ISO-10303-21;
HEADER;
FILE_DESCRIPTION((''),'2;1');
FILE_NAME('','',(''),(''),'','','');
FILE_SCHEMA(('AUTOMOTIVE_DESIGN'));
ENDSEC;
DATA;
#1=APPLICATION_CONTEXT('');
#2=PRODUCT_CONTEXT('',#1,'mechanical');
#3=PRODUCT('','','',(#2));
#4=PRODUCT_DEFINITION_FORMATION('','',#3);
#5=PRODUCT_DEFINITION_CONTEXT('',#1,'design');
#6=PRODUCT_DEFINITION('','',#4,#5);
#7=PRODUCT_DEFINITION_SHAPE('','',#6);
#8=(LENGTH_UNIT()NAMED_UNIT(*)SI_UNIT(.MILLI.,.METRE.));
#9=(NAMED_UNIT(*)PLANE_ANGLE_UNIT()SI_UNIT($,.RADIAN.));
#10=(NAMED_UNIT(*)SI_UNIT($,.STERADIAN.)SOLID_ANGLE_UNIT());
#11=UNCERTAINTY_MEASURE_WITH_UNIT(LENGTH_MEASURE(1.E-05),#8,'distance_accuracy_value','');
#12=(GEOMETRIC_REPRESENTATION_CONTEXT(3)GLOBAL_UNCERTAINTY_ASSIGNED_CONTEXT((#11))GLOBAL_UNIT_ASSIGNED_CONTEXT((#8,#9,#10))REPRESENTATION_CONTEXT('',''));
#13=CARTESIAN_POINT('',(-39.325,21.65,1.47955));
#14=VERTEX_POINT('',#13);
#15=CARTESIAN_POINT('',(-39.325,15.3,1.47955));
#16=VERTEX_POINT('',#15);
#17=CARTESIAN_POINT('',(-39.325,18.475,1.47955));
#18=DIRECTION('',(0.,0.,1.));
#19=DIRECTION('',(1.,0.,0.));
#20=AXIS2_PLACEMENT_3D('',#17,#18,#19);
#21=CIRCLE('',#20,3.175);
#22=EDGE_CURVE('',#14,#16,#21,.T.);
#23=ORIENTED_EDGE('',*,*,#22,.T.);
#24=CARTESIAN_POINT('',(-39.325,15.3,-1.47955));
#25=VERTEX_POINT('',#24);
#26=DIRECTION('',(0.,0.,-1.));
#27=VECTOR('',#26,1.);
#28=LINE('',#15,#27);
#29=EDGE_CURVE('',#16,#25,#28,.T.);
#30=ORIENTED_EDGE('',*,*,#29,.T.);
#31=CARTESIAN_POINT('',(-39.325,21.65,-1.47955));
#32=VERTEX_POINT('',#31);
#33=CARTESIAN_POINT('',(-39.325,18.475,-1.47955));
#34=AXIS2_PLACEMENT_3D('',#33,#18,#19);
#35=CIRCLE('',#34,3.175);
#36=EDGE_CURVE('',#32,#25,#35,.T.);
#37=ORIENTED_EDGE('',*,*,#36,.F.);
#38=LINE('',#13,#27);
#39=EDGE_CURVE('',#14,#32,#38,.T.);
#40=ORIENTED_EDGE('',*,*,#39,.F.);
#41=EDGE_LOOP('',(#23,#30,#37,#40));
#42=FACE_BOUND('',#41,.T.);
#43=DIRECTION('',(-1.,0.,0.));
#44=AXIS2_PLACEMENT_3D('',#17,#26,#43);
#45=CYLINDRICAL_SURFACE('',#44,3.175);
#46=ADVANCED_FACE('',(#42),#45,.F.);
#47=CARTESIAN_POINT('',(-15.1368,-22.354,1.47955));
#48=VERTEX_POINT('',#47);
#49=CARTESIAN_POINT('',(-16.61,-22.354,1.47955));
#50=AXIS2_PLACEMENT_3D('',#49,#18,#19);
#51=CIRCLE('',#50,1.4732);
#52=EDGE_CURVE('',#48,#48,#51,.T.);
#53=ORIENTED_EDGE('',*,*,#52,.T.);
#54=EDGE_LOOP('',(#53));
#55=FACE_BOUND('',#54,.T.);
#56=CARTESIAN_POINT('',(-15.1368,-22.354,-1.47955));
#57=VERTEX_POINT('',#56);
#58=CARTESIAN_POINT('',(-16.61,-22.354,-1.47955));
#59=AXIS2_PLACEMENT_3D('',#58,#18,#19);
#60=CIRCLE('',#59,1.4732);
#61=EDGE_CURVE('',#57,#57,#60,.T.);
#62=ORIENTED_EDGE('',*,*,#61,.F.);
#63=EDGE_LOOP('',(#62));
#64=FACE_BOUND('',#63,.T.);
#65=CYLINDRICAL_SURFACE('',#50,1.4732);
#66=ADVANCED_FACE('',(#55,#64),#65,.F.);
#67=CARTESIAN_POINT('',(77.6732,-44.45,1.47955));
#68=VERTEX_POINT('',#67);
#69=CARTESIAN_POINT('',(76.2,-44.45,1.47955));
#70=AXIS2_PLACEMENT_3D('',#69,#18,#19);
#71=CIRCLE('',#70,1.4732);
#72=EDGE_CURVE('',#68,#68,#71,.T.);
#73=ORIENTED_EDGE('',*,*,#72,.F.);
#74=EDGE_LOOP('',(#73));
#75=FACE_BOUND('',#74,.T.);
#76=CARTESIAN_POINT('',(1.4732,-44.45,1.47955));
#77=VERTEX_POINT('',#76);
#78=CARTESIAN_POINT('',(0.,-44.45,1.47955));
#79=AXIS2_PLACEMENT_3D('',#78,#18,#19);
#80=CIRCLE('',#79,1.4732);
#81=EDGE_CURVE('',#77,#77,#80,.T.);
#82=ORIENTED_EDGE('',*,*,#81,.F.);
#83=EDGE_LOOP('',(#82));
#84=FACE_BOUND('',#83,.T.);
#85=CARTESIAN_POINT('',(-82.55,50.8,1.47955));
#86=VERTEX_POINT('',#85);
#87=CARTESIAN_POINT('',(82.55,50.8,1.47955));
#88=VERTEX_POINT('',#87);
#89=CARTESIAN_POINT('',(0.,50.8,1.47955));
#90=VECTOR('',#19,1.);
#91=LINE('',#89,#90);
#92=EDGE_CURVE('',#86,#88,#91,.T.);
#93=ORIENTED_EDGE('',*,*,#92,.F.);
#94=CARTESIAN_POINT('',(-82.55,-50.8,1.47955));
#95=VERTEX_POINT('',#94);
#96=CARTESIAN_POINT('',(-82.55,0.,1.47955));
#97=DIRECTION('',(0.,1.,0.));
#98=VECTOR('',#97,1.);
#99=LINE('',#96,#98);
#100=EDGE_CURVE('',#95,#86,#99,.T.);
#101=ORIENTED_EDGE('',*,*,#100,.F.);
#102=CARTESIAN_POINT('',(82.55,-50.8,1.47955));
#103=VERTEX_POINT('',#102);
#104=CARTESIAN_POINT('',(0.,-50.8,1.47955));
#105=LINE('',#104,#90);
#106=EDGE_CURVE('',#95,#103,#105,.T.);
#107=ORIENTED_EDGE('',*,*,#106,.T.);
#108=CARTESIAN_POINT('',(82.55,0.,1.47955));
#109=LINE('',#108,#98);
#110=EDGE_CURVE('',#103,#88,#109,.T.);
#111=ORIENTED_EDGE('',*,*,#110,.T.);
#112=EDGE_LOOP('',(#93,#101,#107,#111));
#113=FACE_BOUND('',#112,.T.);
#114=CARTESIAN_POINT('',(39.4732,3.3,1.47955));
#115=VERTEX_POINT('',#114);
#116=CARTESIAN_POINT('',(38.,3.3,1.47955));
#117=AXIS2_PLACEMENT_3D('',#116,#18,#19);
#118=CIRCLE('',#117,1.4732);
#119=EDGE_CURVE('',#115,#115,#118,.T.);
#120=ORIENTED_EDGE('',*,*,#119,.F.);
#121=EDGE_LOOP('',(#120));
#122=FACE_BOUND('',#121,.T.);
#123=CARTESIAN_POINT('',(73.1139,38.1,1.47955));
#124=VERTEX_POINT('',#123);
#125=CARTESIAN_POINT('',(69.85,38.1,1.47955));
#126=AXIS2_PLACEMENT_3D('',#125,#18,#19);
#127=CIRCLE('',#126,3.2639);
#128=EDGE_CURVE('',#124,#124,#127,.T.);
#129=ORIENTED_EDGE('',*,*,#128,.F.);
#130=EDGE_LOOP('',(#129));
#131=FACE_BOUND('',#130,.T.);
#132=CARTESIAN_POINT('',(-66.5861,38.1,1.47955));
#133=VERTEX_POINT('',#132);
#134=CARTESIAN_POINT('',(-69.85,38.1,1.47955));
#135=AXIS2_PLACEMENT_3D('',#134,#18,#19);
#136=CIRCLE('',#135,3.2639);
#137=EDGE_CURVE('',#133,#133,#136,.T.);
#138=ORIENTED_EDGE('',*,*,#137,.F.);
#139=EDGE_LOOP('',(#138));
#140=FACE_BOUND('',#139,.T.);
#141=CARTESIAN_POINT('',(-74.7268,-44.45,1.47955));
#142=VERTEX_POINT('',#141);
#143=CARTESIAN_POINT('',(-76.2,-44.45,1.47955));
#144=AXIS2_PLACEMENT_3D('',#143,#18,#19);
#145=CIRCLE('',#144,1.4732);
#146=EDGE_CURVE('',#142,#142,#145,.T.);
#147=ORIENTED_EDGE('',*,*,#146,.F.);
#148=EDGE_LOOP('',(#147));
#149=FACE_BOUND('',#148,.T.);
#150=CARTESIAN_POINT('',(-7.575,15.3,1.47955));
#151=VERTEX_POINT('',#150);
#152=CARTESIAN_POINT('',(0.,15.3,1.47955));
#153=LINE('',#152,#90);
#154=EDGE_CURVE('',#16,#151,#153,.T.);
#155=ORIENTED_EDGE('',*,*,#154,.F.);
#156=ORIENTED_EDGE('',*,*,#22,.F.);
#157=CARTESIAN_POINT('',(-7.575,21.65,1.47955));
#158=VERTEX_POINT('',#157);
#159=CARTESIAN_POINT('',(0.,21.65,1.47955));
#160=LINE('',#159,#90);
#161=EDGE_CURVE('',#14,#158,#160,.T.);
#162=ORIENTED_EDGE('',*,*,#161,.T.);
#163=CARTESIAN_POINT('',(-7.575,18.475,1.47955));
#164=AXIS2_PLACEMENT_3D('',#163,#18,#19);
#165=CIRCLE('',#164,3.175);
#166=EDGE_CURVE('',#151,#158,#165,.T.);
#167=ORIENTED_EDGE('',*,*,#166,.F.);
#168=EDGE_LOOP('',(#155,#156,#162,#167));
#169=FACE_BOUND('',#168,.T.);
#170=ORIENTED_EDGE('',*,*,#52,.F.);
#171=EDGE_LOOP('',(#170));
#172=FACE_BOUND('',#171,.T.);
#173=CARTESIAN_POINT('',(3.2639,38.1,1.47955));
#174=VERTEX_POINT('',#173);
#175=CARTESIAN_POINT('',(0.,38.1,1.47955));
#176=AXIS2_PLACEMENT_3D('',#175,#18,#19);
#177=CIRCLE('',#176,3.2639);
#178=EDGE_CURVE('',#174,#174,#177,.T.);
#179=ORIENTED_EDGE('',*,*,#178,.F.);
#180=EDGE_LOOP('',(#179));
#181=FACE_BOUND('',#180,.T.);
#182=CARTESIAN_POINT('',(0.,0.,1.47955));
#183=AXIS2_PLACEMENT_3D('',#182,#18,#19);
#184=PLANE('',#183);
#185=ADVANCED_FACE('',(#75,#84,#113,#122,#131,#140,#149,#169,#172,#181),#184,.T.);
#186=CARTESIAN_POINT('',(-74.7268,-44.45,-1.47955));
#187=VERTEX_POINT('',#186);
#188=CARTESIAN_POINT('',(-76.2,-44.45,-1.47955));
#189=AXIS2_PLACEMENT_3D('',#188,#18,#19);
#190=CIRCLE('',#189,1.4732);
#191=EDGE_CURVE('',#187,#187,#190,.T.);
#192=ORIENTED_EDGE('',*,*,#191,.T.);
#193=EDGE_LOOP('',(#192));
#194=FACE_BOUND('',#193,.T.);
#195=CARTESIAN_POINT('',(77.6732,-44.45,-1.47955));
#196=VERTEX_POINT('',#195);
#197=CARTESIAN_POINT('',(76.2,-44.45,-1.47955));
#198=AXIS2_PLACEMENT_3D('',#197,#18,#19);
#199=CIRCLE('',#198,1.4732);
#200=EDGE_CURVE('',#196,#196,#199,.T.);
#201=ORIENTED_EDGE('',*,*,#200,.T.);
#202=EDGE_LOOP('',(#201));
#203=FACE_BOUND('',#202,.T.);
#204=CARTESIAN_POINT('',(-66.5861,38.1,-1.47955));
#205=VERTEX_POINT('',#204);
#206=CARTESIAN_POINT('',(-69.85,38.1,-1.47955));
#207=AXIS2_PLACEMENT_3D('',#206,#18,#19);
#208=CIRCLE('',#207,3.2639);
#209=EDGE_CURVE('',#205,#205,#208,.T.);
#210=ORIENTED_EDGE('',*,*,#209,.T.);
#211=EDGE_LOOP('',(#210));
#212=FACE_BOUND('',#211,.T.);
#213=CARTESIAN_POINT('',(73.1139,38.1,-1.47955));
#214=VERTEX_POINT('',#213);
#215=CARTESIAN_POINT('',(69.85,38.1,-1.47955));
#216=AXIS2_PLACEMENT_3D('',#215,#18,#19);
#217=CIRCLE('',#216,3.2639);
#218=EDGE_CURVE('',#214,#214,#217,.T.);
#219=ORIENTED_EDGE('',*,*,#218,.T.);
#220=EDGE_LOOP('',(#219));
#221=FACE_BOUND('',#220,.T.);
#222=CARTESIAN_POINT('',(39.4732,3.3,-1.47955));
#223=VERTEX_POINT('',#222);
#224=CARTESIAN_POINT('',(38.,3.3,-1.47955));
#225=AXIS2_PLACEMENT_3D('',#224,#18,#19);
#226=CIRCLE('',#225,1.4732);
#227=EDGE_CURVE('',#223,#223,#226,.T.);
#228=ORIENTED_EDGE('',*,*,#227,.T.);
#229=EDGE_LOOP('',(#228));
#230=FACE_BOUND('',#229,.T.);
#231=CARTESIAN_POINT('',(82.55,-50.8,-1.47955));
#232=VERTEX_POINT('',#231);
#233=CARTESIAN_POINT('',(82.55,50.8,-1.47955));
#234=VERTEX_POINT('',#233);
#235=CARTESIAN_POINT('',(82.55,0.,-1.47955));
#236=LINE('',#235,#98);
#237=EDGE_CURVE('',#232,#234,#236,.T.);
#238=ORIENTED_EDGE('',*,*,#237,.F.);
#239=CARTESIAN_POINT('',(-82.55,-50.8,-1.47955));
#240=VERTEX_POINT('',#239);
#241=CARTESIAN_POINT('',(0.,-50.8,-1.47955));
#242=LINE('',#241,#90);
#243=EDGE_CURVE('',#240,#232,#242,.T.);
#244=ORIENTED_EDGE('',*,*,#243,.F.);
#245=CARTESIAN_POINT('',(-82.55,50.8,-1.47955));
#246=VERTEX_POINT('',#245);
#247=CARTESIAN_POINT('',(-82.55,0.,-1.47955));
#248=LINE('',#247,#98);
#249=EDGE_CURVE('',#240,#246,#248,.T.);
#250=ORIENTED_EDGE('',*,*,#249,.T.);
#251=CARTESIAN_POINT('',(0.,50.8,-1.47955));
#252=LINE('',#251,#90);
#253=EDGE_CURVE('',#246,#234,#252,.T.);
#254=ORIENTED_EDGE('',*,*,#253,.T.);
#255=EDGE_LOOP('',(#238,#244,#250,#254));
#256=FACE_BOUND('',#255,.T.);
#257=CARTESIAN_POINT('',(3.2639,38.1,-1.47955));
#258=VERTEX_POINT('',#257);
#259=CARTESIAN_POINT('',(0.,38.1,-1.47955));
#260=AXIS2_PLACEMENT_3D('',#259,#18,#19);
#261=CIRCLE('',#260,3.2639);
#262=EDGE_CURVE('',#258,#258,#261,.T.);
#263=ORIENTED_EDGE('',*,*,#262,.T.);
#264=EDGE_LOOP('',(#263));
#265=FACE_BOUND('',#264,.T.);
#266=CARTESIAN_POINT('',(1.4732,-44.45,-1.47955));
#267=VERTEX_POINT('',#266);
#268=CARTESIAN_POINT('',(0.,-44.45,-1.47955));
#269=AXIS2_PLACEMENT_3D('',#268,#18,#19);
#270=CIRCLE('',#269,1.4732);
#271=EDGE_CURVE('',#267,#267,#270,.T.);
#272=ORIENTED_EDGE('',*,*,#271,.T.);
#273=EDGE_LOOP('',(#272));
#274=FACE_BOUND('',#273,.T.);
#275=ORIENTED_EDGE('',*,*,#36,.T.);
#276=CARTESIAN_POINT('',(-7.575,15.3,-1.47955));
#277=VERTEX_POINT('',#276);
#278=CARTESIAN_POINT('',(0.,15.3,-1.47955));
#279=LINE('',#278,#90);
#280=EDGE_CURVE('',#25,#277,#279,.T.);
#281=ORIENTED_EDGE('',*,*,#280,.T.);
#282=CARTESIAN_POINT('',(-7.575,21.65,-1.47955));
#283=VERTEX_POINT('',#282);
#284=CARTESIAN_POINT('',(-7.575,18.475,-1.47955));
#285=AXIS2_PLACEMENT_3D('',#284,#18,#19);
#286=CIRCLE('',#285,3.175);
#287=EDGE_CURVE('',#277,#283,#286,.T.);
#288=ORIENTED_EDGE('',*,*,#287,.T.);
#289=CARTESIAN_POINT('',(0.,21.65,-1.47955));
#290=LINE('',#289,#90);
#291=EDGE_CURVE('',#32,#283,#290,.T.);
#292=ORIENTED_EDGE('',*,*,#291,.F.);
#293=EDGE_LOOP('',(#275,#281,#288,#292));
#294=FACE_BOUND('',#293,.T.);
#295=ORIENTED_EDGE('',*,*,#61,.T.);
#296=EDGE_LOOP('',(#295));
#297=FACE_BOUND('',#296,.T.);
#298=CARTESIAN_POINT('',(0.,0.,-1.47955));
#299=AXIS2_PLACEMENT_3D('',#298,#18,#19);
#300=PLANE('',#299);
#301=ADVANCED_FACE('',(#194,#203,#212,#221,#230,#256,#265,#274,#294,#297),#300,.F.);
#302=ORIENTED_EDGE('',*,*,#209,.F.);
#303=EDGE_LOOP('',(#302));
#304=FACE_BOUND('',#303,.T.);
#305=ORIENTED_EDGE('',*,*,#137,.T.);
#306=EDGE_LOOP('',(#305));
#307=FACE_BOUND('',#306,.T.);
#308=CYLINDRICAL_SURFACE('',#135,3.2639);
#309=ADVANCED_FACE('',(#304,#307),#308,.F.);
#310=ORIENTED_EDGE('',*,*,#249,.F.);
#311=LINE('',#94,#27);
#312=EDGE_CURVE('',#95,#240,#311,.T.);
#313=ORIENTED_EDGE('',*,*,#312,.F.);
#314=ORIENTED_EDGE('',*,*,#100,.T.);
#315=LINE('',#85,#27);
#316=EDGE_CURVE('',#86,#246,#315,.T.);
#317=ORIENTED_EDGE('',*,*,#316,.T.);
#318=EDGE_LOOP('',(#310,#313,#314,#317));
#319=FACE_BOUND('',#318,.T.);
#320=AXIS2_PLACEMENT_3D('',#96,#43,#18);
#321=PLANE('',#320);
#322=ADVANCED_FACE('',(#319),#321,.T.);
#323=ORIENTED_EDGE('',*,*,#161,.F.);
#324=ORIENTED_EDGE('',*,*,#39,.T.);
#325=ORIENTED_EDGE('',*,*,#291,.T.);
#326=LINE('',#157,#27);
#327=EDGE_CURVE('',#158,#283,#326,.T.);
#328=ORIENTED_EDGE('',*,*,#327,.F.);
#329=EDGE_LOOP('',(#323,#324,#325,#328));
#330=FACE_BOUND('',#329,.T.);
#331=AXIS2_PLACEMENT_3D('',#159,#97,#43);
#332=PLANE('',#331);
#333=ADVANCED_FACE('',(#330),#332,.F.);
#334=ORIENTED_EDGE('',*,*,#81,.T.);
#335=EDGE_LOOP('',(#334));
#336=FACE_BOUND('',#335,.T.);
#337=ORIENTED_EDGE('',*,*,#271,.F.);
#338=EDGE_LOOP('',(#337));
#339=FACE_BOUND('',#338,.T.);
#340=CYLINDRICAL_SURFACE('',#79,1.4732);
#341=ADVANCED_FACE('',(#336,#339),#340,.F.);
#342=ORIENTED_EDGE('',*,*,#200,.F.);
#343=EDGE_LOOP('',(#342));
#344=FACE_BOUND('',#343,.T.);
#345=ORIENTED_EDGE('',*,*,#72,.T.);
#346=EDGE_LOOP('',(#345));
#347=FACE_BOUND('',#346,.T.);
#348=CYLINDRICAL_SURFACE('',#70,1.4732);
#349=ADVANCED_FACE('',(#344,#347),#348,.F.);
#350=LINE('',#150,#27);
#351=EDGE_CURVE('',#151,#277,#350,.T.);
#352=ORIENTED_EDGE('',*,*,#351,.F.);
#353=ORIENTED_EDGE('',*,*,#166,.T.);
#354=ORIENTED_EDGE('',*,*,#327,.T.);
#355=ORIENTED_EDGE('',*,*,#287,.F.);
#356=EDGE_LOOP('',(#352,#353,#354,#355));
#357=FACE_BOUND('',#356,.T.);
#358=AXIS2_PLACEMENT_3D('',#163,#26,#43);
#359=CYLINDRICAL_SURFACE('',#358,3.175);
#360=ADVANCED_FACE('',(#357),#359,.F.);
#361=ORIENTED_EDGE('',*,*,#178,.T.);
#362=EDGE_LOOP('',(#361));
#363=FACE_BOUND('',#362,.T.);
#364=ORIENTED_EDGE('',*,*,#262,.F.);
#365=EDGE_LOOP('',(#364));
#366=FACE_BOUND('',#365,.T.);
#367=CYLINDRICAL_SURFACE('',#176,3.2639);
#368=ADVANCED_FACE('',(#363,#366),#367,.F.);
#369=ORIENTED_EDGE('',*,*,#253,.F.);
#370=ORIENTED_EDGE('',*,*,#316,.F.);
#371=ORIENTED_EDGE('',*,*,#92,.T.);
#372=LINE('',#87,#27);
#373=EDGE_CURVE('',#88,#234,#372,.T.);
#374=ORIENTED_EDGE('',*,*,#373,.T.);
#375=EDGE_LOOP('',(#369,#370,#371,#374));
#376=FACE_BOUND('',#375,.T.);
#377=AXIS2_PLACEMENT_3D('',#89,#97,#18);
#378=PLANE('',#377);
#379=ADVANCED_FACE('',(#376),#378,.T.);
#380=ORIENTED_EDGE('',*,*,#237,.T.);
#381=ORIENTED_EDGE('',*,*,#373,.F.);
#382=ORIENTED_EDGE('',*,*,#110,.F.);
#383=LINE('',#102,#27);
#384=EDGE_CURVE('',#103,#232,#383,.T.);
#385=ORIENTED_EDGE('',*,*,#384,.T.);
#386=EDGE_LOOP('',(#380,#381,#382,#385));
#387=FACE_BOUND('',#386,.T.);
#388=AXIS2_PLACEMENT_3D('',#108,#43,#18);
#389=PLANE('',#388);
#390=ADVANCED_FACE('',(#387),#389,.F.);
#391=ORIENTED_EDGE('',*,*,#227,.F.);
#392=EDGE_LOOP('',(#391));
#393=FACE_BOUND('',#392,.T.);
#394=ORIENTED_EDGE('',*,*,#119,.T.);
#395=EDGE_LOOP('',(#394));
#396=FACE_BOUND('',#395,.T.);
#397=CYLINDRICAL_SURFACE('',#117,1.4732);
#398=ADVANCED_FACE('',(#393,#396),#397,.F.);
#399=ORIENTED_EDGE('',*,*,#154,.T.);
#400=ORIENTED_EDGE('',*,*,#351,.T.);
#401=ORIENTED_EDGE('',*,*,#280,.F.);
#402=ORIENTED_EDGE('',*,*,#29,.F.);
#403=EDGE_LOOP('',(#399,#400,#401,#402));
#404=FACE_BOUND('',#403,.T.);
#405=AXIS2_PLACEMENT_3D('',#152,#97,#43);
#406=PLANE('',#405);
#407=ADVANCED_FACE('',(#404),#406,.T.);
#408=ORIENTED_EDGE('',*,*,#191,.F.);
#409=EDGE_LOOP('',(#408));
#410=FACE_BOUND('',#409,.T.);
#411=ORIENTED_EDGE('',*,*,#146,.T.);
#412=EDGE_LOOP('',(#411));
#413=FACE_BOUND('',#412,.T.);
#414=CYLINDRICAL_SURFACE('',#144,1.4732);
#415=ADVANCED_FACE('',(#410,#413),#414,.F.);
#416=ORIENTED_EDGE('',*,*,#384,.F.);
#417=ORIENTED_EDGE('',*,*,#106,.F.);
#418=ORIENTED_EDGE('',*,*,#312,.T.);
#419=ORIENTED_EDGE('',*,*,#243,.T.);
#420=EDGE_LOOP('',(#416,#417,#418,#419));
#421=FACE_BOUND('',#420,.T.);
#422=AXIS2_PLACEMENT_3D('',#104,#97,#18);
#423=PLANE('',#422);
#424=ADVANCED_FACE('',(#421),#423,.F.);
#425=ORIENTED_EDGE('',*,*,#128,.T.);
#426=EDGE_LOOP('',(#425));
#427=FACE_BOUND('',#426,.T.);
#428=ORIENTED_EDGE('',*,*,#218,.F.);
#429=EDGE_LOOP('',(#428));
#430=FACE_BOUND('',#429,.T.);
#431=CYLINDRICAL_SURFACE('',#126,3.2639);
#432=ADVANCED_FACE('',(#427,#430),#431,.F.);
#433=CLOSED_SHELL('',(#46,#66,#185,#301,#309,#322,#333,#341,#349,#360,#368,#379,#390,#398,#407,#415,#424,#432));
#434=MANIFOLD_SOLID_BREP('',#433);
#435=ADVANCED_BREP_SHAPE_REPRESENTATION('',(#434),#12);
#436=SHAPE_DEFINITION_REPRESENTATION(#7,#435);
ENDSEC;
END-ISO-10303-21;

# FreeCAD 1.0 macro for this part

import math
import FreeCAD as App
import Part
import Sketcher

V = App.Vector
Q = App.Units.Quantity

doc = App.newDocument("Part")
body = doc.addObject("PartDesign::Body", "Body")

# Sketch on XY plane
sketch1 = doc.addObject("Sketcher::SketchObject", "Sketch")
body.addObject(sketch1)
sketch1.AttachmentSupport = (doc.XY_Plane, [""])
sketch1.MapMode = "FlatFace"
sketch1.addGeometry([
    Part.LineSegment(V(-82.55, 50.8, 0), V(-82.55, -50.8, 0)),  # 0
    Part.LineSegment(V(-82.55, -50.8, 0), V(82.55, -50.8, 0)),  # 1
    Part.LineSegment(V(82.55, -50.8, 0), V(82.55, 50.8, 0)),  # 2
    Part.LineSegment(V(82.55, 50.8, 0), V(-82.55, 50.8, 0)),  # 3
    Part.ArcOfCircle(Part.Circle(V(-7.575, 18.475, 0), V(0, 0, 1), 3.175), math.radians(-90), math.radians(90)),  # 4
    Part.LineSegment(V(-7.575, 15.3, 0), V(-39.325, 15.3, 0)),  # 5
    Part.ArcOfCircle(Part.Circle(V(-39.325, 18.475, 0), V(0, 0, 1), 3.175), math.radians(90), math.radians(270)),  # 6
    Part.LineSegment(V(-39.325, 21.65, 0), V(-7.575, 21.65, 0)),  # 7
], False)
sketch1.addConstraint([
    Sketcher.Constraint("Coincident", 0, 2, 1, 1),
    Sketcher.Constraint("Coincident", 1, 2, 2, 1),
    Sketcher.Constraint("Coincident", 2, 2, 3, 1),
    Sketcher.Constraint("Coincident", 3, 2, 0, 1),
    Sketcher.Constraint("Tangent", 4, 1, 5, 1),
    Sketcher.Constraint("Tangent", 5, 2, 6, 2),
    Sketcher.Constraint("Tangent", 6, 1, 7, 1),
    Sketcher.Constraint("Tangent", 7, 2, 4, 2),
    Sketcher.Constraint("Vertical", 0),
    Sketcher.Constraint("Horizontal", 1),
    Sketcher.Constraint("Vertical", 2),
    Sketcher.Constraint("Horizontal", 3),
    Sketcher.Constraint("Horizontal", 5),
    Sketcher.Constraint("Horizontal", 7),
    Sketcher.Constraint("Symmetric", 0, 2, 2, 2, -1, 1),
    Sketcher.Constraint("DistanceY", 0, 2, 0, 1, Q("4 in")),
    Sketcher.Constraint("DistanceX", 1, 1, 1, 2, Q("6.5 in")),
    Sketcher.Constraint("Radius", 4, Q("0.125 in")),
    Sketcher.Constraint("DistanceX", 5, 2, 5, 1, Q("1.25 in")),
    Sketcher.Constraint("DistanceX", 4, 3, -1, 1, 7.575),
    Sketcher.Constraint("DistanceY", -1, 1, 4, 3, 18.475),
])
pad1 = doc.addObject("PartDesign::Pad", "Pad")
body.addObject(pad1)
pad1.Profile = sketch1
pad1.Length = Q("0.1165 in")
pad1.Midplane = True

# Sketch on XY plane
sketch2 = doc.addObject("Sketcher::SketchObject", "Sketch001")
body.addObject(sketch2)
sketch2.AttachmentSupport = (doc.XY_Plane, [""])
sketch2.MapMode = "FlatFace"
sketch2.AttachmentOffset = App.Placement(V(0, 0, 1.47955), App.Rotation())
sketch2.addGeometry([
    Part.Circle(V(-69.85, 38.1, 0), V(0, 0, 1), 3.2639),
    Part.Circle(V(69.85, 38.1, 0), V(0, 0, 1), 3.2639),
    Part.Circle(V(0, 38.1, 0), V(0, 0, 1), 3.2639),
], False)
sketch2.addConstraint([
    Sketcher.Constraint("Equal", 0, 1),
    Sketcher.Constraint("Equal", 1, 2),
    Sketcher.Constraint("Symmetric", 0, 3, 1, 3, -2),
    Sketcher.Constraint("PointOnObject", 2, 3, -2),
    Sketcher.Constraint("Horizontal", 1, 3, 2, 3),
    Sketcher.Constraint("Diameter", 0, Q("0.257 in")),
    Sketcher.Constraint("DistanceY", -1, 1, 0, 3, Q("1.5 in")),
    Sketcher.Constraint("DistanceX", 0, 3, 1, 3, Q("5.5 in")),
])
doc.recompute()
hole = doc.addObject("PartDesign::Hole", "Hole")
body.addObject(hole)
hole.Profile = sketch2
hole.ThreadType = "None"
hole.Diameter = Q("0.257 in")
hole.DepthType = "ThroughAll"

# Sketch on XY plane
sketch3 = doc.addObject("Sketcher::SketchObject", "Sketch002")
body.addObject(sketch3)
sketch3.AttachmentSupport = (doc.XY_Plane, [""])
sketch3.MapMode = "FlatFace"
sketch3.AttachmentOffset = App.Placement(V(0, 0, 1.47955), App.Rotation())
sketch3.addGeometry([
    Part.Circle(V(38, 3.3, 0), V(0, 0, 1), 1.4732),  # 0
    Part.Circle(V(-16.61, -22.354, 0), V(0, 0, 1), 1.4732),  # 1
    Part.Circle(V(-76.2, -44.45, 0), V(0, 0, 1), 1.4732),  # 2
    Part.Circle(V(76.2, -44.45, 0), V(0, 0, 1), 1.4732),  # 3
    Part.Circle(V(0, -44.45, 0), V(0, 0, 1), 1.4732),  # 4
], False)
sketch3.addConstraint([
    Sketcher.Constraint("Equal", 0, 1),
    Sketcher.Constraint("Equal", 1, 2),
    Sketcher.Constraint("Equal", 2, 3),
    Sketcher.Constraint("Equal", 3, 4),
    Sketcher.Constraint("Symmetric", 2, 3, 3, 3, -2),
    Sketcher.Constraint("PointOnObject", 4, 3, -2),
    Sketcher.Constraint("Horizontal", 3, 3, 4, 3),
    Sketcher.Constraint("Diameter", 0, Q("0.116 in")),
    Sketcher.Constraint("DistanceX", 2, 3, -1, 1, Q("3 in")),
    Sketcher.Constraint("DistanceY", 2, 3, -1, 1, Q("1.75 in")),
    Sketcher.Constraint("DistanceX", 1, 3, 0, 3, Q("2.15 in")),
    Sketcher.Constraint("DistanceY", 1, 3, 0, 3, Q("1.01 in")),
    Sketcher.Constraint("DistanceX", -1, 1, 0, 3, 38.0),
    Sketcher.Constraint("DistanceY", -1, 1, 0, 3, 3.3),
])
doc.recompute()
hole2 = doc.addObject("PartDesign::Hole", "Hole001")
body.addObject(hole2)
hole2.Profile = sketch3
hole2.ThreadType = "None"
hole2.Diameter = Q("0.116 in")
hole2.DepthType = "ThroughAll"

doc.recompute()
